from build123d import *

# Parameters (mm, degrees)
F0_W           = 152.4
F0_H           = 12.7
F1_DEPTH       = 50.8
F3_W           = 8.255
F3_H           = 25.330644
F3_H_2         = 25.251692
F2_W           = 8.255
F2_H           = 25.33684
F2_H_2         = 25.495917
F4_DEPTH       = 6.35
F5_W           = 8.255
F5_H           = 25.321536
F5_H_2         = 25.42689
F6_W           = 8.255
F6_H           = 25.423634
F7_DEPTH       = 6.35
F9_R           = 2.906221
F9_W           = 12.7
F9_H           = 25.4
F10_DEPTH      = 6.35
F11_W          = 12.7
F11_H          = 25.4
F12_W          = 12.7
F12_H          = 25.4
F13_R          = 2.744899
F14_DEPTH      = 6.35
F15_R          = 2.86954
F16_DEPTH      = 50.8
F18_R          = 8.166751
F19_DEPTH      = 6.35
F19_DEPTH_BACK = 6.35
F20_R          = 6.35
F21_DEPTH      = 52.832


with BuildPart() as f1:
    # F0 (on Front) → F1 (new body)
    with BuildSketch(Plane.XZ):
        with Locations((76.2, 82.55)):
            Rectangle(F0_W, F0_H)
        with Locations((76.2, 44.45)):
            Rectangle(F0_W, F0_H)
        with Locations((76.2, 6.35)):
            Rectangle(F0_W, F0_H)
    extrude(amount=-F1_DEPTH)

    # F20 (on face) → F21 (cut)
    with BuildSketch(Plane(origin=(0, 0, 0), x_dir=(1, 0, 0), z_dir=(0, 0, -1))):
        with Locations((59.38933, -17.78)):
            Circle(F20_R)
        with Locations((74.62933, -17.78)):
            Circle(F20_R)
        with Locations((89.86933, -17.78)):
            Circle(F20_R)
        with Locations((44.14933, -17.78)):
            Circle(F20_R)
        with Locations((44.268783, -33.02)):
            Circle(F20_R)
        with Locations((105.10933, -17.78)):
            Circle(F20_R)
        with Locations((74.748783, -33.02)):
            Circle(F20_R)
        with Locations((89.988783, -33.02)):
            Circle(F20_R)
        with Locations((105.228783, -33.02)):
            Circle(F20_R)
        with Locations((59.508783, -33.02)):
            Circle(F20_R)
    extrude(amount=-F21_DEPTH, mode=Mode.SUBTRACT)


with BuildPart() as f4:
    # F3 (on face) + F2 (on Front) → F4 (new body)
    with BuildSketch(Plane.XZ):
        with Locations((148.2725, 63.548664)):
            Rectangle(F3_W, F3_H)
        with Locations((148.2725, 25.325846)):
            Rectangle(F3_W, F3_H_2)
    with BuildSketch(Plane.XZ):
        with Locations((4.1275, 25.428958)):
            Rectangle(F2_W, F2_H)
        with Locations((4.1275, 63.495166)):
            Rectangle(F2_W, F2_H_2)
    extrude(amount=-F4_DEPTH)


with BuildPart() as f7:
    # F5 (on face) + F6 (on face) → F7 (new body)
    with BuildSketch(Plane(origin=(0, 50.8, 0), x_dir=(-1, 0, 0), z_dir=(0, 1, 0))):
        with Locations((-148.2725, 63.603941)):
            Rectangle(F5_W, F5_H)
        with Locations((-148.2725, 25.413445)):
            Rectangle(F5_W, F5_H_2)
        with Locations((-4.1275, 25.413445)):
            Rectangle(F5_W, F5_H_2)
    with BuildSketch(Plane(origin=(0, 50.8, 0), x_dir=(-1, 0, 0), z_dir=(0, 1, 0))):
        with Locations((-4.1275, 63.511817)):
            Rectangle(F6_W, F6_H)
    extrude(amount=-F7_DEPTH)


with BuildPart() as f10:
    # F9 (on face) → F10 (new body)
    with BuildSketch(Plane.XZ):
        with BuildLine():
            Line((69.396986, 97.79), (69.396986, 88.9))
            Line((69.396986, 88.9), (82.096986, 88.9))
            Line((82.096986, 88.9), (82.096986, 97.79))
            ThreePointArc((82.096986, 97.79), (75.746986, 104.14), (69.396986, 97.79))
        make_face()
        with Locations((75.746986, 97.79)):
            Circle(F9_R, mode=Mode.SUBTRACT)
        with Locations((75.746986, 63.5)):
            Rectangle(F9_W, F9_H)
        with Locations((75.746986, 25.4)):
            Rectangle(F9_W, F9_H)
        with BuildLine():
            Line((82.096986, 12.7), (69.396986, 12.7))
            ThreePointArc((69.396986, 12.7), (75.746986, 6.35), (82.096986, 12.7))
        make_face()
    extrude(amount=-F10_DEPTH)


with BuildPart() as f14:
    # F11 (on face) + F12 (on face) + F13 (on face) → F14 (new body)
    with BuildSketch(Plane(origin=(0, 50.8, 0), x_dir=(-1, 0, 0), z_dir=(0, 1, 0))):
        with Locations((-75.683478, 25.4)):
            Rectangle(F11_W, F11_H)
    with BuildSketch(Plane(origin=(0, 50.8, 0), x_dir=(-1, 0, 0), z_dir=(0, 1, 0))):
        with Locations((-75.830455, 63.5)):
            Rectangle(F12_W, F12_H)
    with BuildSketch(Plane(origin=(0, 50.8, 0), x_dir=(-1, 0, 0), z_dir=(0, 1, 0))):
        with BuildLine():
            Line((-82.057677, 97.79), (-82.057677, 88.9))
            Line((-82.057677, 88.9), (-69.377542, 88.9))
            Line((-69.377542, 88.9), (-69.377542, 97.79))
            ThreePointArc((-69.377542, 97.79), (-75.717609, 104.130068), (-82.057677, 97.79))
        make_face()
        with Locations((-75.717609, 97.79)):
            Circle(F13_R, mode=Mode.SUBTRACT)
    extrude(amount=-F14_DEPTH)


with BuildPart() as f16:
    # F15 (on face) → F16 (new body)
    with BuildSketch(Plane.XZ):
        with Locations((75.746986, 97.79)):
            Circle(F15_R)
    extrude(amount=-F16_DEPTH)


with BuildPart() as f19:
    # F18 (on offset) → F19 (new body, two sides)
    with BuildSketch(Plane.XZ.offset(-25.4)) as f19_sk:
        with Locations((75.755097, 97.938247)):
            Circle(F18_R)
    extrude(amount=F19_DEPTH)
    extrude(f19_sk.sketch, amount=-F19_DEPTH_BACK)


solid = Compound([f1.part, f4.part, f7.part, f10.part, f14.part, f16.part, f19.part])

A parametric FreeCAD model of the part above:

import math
import FreeCAD as App
import Part
import Sketcher

V = App.Vector
Q = App.Units.Quantity

doc = App.newDocument("Part")
body = doc.addObject("PartDesign::Body", "Body")
body.AllowCompound = True

# Sketch on XZ plane
sketch1 = body.newObject("Sketcher::SketchObject", "Sketch")
sketch1.AttachmentSupport = (doc.getObject("XZ_Plane"), [""])
sketch1.MapMode = "FlatFace"
sketch1.addGeometry(Part.LineSegment(V(0, 89, 0), V(0, 76, 0)), False)
sketch1.addGeometry(Part.LineSegment(V(0, 76, 0), V(152, 76, 0)), False)
sketch1.addGeometry(Part.LineSegment(V(152, 76, 0), V(152, 89, 0)), False)
sketch1.addGeometry(Part.LineSegment(V(152, 89, 0), V(0, 89, 0)), False)
sketch1.addGeometry(Part.LineSegment(V(0, 51, 0), V(0, 38, 0)), False)
sketch1.addGeometry(Part.LineSegment(V(0, 38, 0), V(152, 38, 0)), False)
sketch1.addGeometry(Part.LineSegment(V(152, 38, 0), V(152, 51, 0)), False)
sketch1.addGeometry(Part.LineSegment(V(152, 51, 0), V(0, 51, 0)), False)
sketch1.addGeometry(Part.LineSegment(V(0, 13, 0), V(0, 0, 0)), False)
sketch1.addGeometry(Part.LineSegment(V(0, 0, 0), V(152, 0, 0)), False)
sketch1.addGeometry(Part.LineSegment(V(152, 0, 0), V(152, 13, 0)), False)
sketch1.addGeometry(Part.LineSegment(V(152, 13, 0), V(0, 13, 0)), False)
sketch1.addConstraint(Sketcher.Constraint("Coincident", 0, 2, 1, 1))
sketch1.addConstraint(Sketcher.Constraint("Coincident", 1, 2, 2, 1))
sketch1.addConstraint(Sketcher.Constraint("Coincident", 2, 2, 3, 1))
sketch1.addConstraint(Sketcher.Constraint("Coincident", 3, 2, 0, 1))
sketch1.addConstraint(Sketcher.Constraint("Coincident", 4, 2, 5, 1))
sketch1.addConstraint(Sketcher.Constraint("Coincident", 5, 2, 6, 1))
sketch1.addConstraint(Sketcher.Constraint("Coincident", 6, 2, 7, 1))
sketch1.addConstraint(Sketcher.Constraint("Coincident", 7, 2, 4, 1))
sketch1.addConstraint(Sketcher.Constraint("Coincident", 8, 2, 9, 1))
sketch1.addConstraint(Sketcher.Constraint("Coincident", 9, 2, 10, 1))
sketch1.addConstraint(Sketcher.Constraint("Coincident", 10, 2, 11, 1))
sketch1.addConstraint(Sketcher.Constraint("Coincident", 11, 2, 8, 1))
sketch1.addConstraint(Sketcher.Constraint("Vertical", 0))
sketch1.addConstraint(Sketcher.Constraint("Horizontal", 1))
sketch1.addConstraint(Sketcher.Constraint("Vertical", 2))
sketch1.addConstraint(Sketcher.Constraint("Horizontal", 3))
sketch1.addConstraint(Sketcher.Constraint("Vertical", 4))
sketch1.addConstraint(Sketcher.Constraint("Horizontal", 5))
sketch1.addConstraint(Sketcher.Constraint("Vertical", 6))
sketch1.addConstraint(Sketcher.Constraint("Horizontal", 7))
sketch1.addConstraint(Sketcher.Constraint("Vertical", 8))
sketch1.addConstraint(Sketcher.Constraint("Horizontal", 9))
sketch1.addConstraint(Sketcher.Constraint("Vertical", 10))
sketch1.addConstraint(Sketcher.Constraint("Horizontal", 11))
sketch1.addConstraint(Sketcher.Constraint("Coincident", 8, 2, -1, 1))
sketch1.addConstraint(Sketcher.Constraint("PointOnObject", 0, 2, -2))
sketch1.addConstraint(Sketcher.Constraint("PointOnObject", 4, 2, -2))
sketch1.addConstraint(Sketcher.Constraint("Vertical", 2, 2, 5, 2))
sketch1.addConstraint(Sketcher.Constraint("Vertical", 6, 2, 9, 2))
sketch1.addConstraint(Sketcher.Constraint("Equal", 2, 4))
sketch1.addConstraint(Sketcher.Constraint("Equal", 6, 8))
sketch1.addConstraint(Sketcher.Constraint("DistanceX", 1, 1, 1, 2, Q("6 in")))
sketch1.addConstraint(Sketcher.Constraint("DistanceY", 0, 2, 0, 1, Q("0.5 in")))
sketch1.addConstraint(Sketcher.Constraint("DistanceY", -1, 1, 0, 2, Q("3 in")))
sketch1.addConstraint(Sketcher.Constraint("DistanceY", -1, 1, 6, 2, Q("2 in")))
pad1 = body.newObject("PartDesign::Pad", "Pad")
pad1.Profile = sketch1
pad1.Length = Q("2 in")
pad1.Reversed = True

# Sketch on XY plane
sketch2 = body.newObject("Sketcher::SketchObject", "Sketch001")
sketch2.AttachmentSupport = (doc.getObject("XY_Plane"), [""])
sketch2.MapMode = "FlatFace"
sketch2.addGeometry(Part.Circle(V(59, 18, 0), V(0, 0, 1), 6), False)
sketch2.addGeometry(Part.Circle(V(75, 18, 0), V(0, 0, 1), 6), False)
sketch2.addGeometry(Part.Circle(V(90, 18, 0), V(0, 0, 1), 6), False)
sketch2.addGeometry(Part.Circle(V(44, 18, 0), V(0, 0, 1), 6), False)
sketch2.addGeometry(Part.Circle(V(44, 33, 0), V(0, 0, 1), 6), False)
sketch2.addGeometry(Part.Circle(V(105, 18, 0), V(0, 0, 1), 6), False)
sketch2.addGeometry(Part.Circle(V(75, 33, 0), V(0, 0, 1), 6), False)
sketch2.addGeometry(Part.Circle(V(90, 33, 0), V(0, 0, 1), 6), False)
sketch2.addGeometry(Part.Circle(V(105, 33, 0), V(0, 0, 1), 6), False)
sketch2.addGeometry(Part.Circle(V(60, 33, 0), V(0, 0, 1), 6), False)
sketch2.addConstraint(Sketcher.Constraint("Equal", 0, 1))
sketch2.addConstraint(Sketcher.Constraint("Equal", 1, 2))
sketch2.addConstraint(Sketcher.Constraint("Equal", 2, 3))
sketch2.addConstraint(Sketcher.Constraint("Equal", 3, 4))
sketch2.addConstraint(Sketcher.Constraint("Equal", 4, 5))
sketch2.addConstraint(Sketcher.Constraint("Equal", 5, 6))
sketch2.addConstraint(Sketcher.Constraint("Equal", 6, 7))
sketch2.addConstraint(Sketcher.Constraint("Equal", 7, 8))
sketch2.addConstraint(Sketcher.Constraint("Equal", 8, 9))
sketch2.addConstraint(Sketcher.Constraint("Horizontal", 0, 3, 1, 3))
sketch2.addConstraint(Sketcher.Constraint("Horizontal", 1, 3, 2, 3))
sketch2.addConstraint(Sketcher.Constraint("Horizontal", 2, 3, 3, 3))
sketch2.addConstraint(Sketcher.Constraint("Horizontal", 3, 3, 5, 3))
sketch2.addConstraint(Sketcher.Constraint("Horizontal", 4, 3, 6, 3))
sketch2.addConstraint(Sketcher.Constraint("Horizontal", 6, 3, 7, 3))
sketch2.addConstraint(Sketcher.Constraint("Horizontal", 7, 3, 8, 3))
sketch2.addConstraint(Sketcher.Constraint("Horizontal", 8, 3, 9, 3))
sketch2.addConstraint(Sketcher.Constraint("Diameter", 0, Q("0.5 in")))
sketch2.addConstraint(Sketcher.Constraint("DistanceY", -1, 1, 0, 3, Q("0.7 in")))
sketch2.addConstraint(Sketcher.Constraint("DistanceY", -1, 1, 4, 3, Q("1.3 in")))
sketch2.addConstraint(Sketcher.Constraint("DistanceX", 0, 3, 1, 3, Q("0.6 in")))
sketch2.addConstraint(Sketcher.Constraint("DistanceX", 1, 3, 2, 3, Q("0.6 in")))
sketch2.addConstraint(Sketcher.Constraint("DistanceX", 3, 3, 0, 3, Q("0.6 in")))
sketch2.addConstraint(Sketcher.Constraint("DistanceX", 2, 3, 5, 3, Q("0.6 in")))
sketch2.addConstraint(Sketcher.Constraint("DistanceX", 4, 3, 6, 3, Q("1.2 in")))
sketch2.addConstraint(Sketcher.Constraint("DistanceX", 6, 3, 7, 3, Q("0.6 in")))
sketch2.addConstraint(Sketcher.Constraint("DistanceX", 7, 3, 8, 3, Q("0.6 in")))
sketch2.addConstraint(Sketcher.Constraint("DistanceX", 4, 3, 9, 3, Q("0.6 in")))
sketch2.addConstraint(Sketcher.Constraint("DistanceX", -1, 1, 0, 3, Q("59.38933 mm")))
sketch2.addConstraint(Sketcher.Constraint("DistanceX", -1, 1, 4, 3, Q("44.268783 mm")))
pocket1 = body.newObject("PartDesign::Pocket", "Pocket")
pocket1.Profile = sketch2
pocket1.Length = Q("2.08 in")
pocket1.Reversed = True
body2 = doc.addObject("PartDesign::Body", "Body001")
body2.AllowCompound = True

# Sketch on XZ plane
sketch3 = body2.newObject("Sketcher::SketchObject", "Sketch002")
sketch3.AttachmentSupport = (doc.getObject("XZ_Plane001"), [""])
sketch3.MapMode = "FlatFace"
sketch3.addGeometry(Part.LineSegment(V(144, 76, 0), V(144, 51, 0)), False)
sketch3.addGeometry(Part.LineSegment(V(144, 51, 0), V(152, 51, 0)), False)
sketch3.addGeometry(Part.LineSegment(V(152, 51, 0), V(152, 76, 0)), False)
sketch3.addGeometry(Part.LineSegment(V(152, 76, 0), V(144, 76, 0)), False)
sketch3.addGeometry(Part.LineSegment(V(144, 38, 0), V(144, 13, 0)), False)
sketch3.addGeometry(Part.LineSegment(V(144, 13, 0), V(152, 13, 0)), False)
sketch3.addGeometry(Part.LineSegment(V(152, 13, 0), V(152, 38, 0)), False)
sketch3.addGeometry(Part.LineSegment(V(152, 38, 0), V(144, 38, 0)), False)
sketch3.addGeometry(Part.LineSegment(V(0, 38, 0), V(0, 13, 0)), False)
sketch3.addGeometry(Part.LineSegment(V(0, 13, 0), V(8, 13, 0)), False)
sketch3.addGeometry(Part.LineSegment(V(8, 13, 0), V(8, 38, 0)), False)
sketch3.addGeometry(Part.LineSegment(V(8, 38, 0), V(0, 38, 0)), False)
sketch3.addGeometry(Part.LineSegment(V(0, 76, 0), V(0, 51, 0)), False)
sketch3.addGeometry(Part.LineSegment(V(0, 51, 0), V(8, 51, 0)), False)
sketch3.addGeometry(Part.LineSegment(V(8, 51, 0), V(8, 76, 0)), False)
sketch3.addGeometry(Part.LineSegment(V(8, 76, 0), V(0, 76, 0)), False)
sketch3.addConstraint(Sketcher.Constraint("Coincident", 0, 2, 1, 1))
sketch3.addConstraint(Sketcher.Constraint("Coincident", 1, 2, 2, 1))
sketch3.addConstraint(Sketcher.Constraint("Coincident", 2, 2, 3, 1))
sketch3.addConstraint(Sketcher.Constraint("Coincident", 3, 2, 0, 1))
sketch3.addConstraint(Sketcher.Constraint("Coincident", 4, 2, 5, 1))
sketch3.addConstraint(Sketcher.Constraint("Coincident", 5, 2, 6, 1))
sketch3.addConstraint(Sketcher.Constraint("Coincident", 6, 2, 7, 1))
sketch3.addConstraint(Sketcher.Constraint("Coincident", 7, 2, 4, 1))
sketch3.addConstraint(Sketcher.Constraint("Coincident", 8, 2, 9, 1))
sketch3.addConstraint(Sketcher.Constraint("Coincident", 9, 2, 10, 1))
sketch3.addConstraint(Sketcher.Constraint("Coincident", 10, 2, 11, 1))
sketch3.addConstraint(Sketcher.Constraint("Coincident", 11, 2, 8, 1))
sketch3.addConstraint(Sketcher.Constraint("Coincident", 12, 2, 13, 1))
sketch3.addConstraint(Sketcher.Constraint("Coincident", 13, 2, 14, 1))
sketch3.addConstraint(Sketcher.Constraint("Coincident", 14, 2, 15, 1))
sketch3.addConstraint(Sketcher.Constraint("Coincident", 15, 2, 12, 1))
sketch3.addConstraint(Sketcher.Constraint("Vertical", 0))
sketch3.addConstraint(Sketcher.Constraint("Horizontal", 1))
sketch3.addConstraint(Sketcher.Constraint("Vertical", 2))
sketch3.addConstraint(Sketcher.Constraint("Horizontal", 3))
sketch3.addConstraint(Sketcher.Constraint("Vertical", 4))
sketch3.addConstraint(Sketcher.Constraint("Horizontal", 5))
sketch3.addConstraint(Sketcher.Constraint("Vertical", 6))
sketch3.addConstraint(Sketcher.Constraint("Horizontal", 7))
sketch3.addConstraint(Sketcher.Constraint("Vertical", 8))
sketch3.addConstraint(Sketcher.Constraint("Horizontal", 9))
sketch3.addConstraint(Sketcher.Constraint("Vertical", 10))
sketch3.addConstraint(Sketcher.Constraint("Horizontal", 11))
sketch3.addConstraint(Sketcher.Constraint("Vertical", 12))
sketch3.addConstraint(Sketcher.Constraint("Horizontal", 13))
sketch3.addConstraint(Sketcher.Constraint("Vertical", 14))
sketch3.addConstraint(Sketcher.Constraint("Horizontal", 15))
sketch3.addConstraint(Sketcher.Constraint("PointOnObject", 8, 2, -2))
sketch3.addConstraint(Sketcher.Constraint("PointOnObject", 12, 2, -2))
sketch3.addConstraint(Sketcher.Constraint("Vertical", 3, 2, 4, 2))
sketch3.addConstraint(Sketcher.Constraint("Vertical", 2, 2, 5, 2))
sketch3.addConstraint(Sketcher.Constraint("Vertical", 10, 2, 13, 2))
sketch3.addConstraint(Sketcher.Constraint("Equal", 7, 9))
sketch3.addConstraint(Sketcher.Constraint("DistanceX", -1, 1, 1, 2, Q("6 in")))
sketch3.addConstraint(Sketcher.Constraint("DistanceY", -1, 1, 4, 2, Q("0.5 in")))
sketch3.addConstraint(Sketcher.Constraint("DistanceX", 1, 1, 1, 2, Q("0.325 in")))
sketch3.addConstraint(Sketcher.Constraint("DistanceY", 8, 2, 8, 1, Q("25.33684 mm")))
sketch3.addConstraint(Sketcher.Constraint("DistanceY", 0, 2, 0, 1, Q("25.330644 mm")))
sketch3.addConstraint(Sketcher.Constraint("DistanceY", 4, 2, 4, 1, Q("25.251692 mm")))
sketch3.addConstraint(Sketcher.Constraint("DistanceY", 12, 2, 12, 1, Q("25.495917 mm")))
sketch3.addConstraint(Sketcher.Constraint("DistanceY", 4, 2, 0, 2, Q("38.183342 mm")))
sketch3.addConstraint(Sketcher.Constraint("DistanceY", 4, 2, 8, 2, Q("0.060538 mm")))
sketch3.addConstraint(Sketcher.Constraint("DistanceY", 11, 2, 12, 2, Q("12.64983 mm")))
pad2 = body2.newObject("PartDesign::Pad", "Pad001")
pad2.Profile = sketch3
pad2.Length = Q("0.25 in")
pad2.Reversed = True
body3 = doc.addObject("PartDesign::Body", "Body002")
body3.AllowCompound = True

# Sketch on XZ plane
sketch4 = body3.newObject("Sketcher::SketchObject", "Sketch003")
sketch4.AttachmentSupport = (doc.getObject("XZ_Plane002"), [""])
sketch4.MapMode = "FlatFace"
sketch4.AttachmentOffset = App.Placement(V(0, 0, -2 * 25.4), App.Rotation())
sketch4.addGeometry(Part.LineSegment(V(152, 76, 0), V(152, 51, 0)), False)
sketch4.addGeometry(Part.LineSegment(V(152, 51, 0), V(144, 51, 0)), False)
sketch4.addGeometry(Part.LineSegment(V(144, 51, 0), V(144, 76, 0)), False)
sketch4.addGeometry(Part.LineSegment(V(144, 76, 0), V(152, 76, 0)), False)
sketch4.addGeometry(Part.LineSegment(V(152, 38, 0), V(152, 13, 0)), False)
sketch4.addGeometry(Part.LineSegment(V(152, 13, 0), V(144, 13, 0)), False)
sketch4.addGeometry(Part.LineSegment(V(144, 13, 0), V(144, 38, 0)), False)
sketch4.addGeometry(Part.LineSegment(V(144, 38, 0), V(152, 38, 0)), False)
sketch4.addGeometry(Part.LineSegment(V(8, 38, 0), V(8, 13, 0)), False)
sketch4.addGeometry(Part.LineSegment(V(8, 13, 0), V(0, 13, 0)), False)
sketch4.addGeometry(Part.LineSegment(V(0, 13, 0), V(0, 38, 0)), False)
sketch4.addGeometry(Part.LineSegment(V(0, 38, 0), V(8, 38, 0)), False)
sketch4.addGeometry(Part.LineSegment(V(8, 76, 0), V(8, 51, 0)), False)
sketch4.addGeometry(Part.LineSegment(V(8, 51, 0), V(0, 51, 0)), False)
sketch4.addGeometry(Part.LineSegment(V(0, 51, 0), V(0, 76, 0)), False)
sketch4.addGeometry(Part.LineSegment(V(0, 76, 0), V(8, 76, 0)), False)
sketch4.addConstraint(Sketcher.Constraint("Coincident", 0, 2, 1, 1))
sketch4.addConstraint(Sketcher.Constraint("Coincident", 1, 2, 2, 1))
sketch4.addConstraint(Sketcher.Constraint("Coincident", 2, 2, 3, 1))
sketch4.addConstraint(Sketcher.Constraint("Coincident", 3, 2, 0, 1))
sketch4.addConstraint(Sketcher.Constraint("Coincident", 4, 2, 5, 1))
sketch4.addConstraint(Sketcher.Constraint("Coincident", 5, 2, 6, 1))
sketch4.addConstraint(Sketcher.Constraint("Coincident", 6, 2, 7, 1))
sketch4.addConstraint(Sketcher.Constraint("Coincident", 7, 2, 4, 1))
sketch4.addConstraint(Sketcher.Constraint("Coincident", 8, 2, 9, 1))
sketch4.addConstraint(Sketcher.Constraint("Coincident", 9, 2, 10, 1))
sketch4.addConstraint(Sketcher.Constraint("Coincident", 10, 2, 11, 1))
sketch4.addConstraint(Sketcher.Constraint("Coincident", 11, 2, 8, 1))
sketch4.addConstraint(Sketcher.Constraint("Coincident", 12, 2, 13, 1))
sketch4.addConstraint(Sketcher.Constraint("Coincident", 13, 2, 14, 1))
sketch4.addConstraint(Sketcher.Constraint("Coincident", 14, 2, 15, 1))
sketch4.addConstraint(Sketcher.Constraint("Coincident", 15, 2, 12, 1))
sketch4.addConstraint(Sketcher.Constraint("Vertical", 0))
sketch4.addConstraint(Sketcher.Constraint("Horizontal", 1))
sketch4.addConstraint(Sketcher.Constraint("Vertical", 2))
sketch4.addConstraint(Sketcher.Constraint("Horizontal", 3))
sketch4.addConstraint(Sketcher.Constraint("Vertical", 4))
sketch4.addConstraint(Sketcher.Constraint("Horizontal", 5))
sketch4.addConstraint(Sketcher.Constraint("Vertical", 6))
sketch4.addConstraint(Sketcher.Constraint("Horizontal", 7))
sketch4.addConstraint(Sketcher.Constraint("Vertical", 8))
sketch4.addConstraint(Sketcher.Constraint("Horizontal", 9))
sketch4.addConstraint(Sketcher.Constraint("Vertical", 10))
sketch4.addConstraint(Sketcher.Constraint("Horizontal", 11))
sketch4.addConstraint(Sketcher.Constraint("Vertical", 12))
sketch4.addConstraint(Sketcher.Constraint("Horizontal", 13))
sketch4.addConstraint(Sketcher.Constraint("Vertical", 14))
sketch4.addConstraint(Sketcher.Constraint("Horizontal", 15))
sketch4.addConstraint(Sketcher.Constraint("PointOnObject", 9, 2, -2))
sketch4.addConstraint(Sketcher.Constraint("PointOnObject", 13, 2, -2))
sketch4.addConstraint(Sketcher.Constraint("Horizontal", 5, 2, 8, 2))
sketch4.addConstraint(Sketcher.Constraint("Horizontal", 7, 2, 10, 2))
sketch4.addConstraint(Sketcher.Constraint("Vertical", 3, 2, 4, 2))
sketch4.addConstraint(Sketcher.Constraint("Vertical", 2, 2, 5, 2))
sketch4.addConstraint(Sketcher.Constraint("Vertical", 11, 2, 12, 2))
sketch4.addConstraint(Sketcher.Constraint("Equal", 7, 9))
sketch4.addConstraint(Sketcher.Constraint("DistanceX", -1, 1, 0, 2, Q("6 in")))
sketch4.addConstraint(Sketcher.Constraint("DistanceY", -1, 1, 12, 2, Q("2 in")))
sketch4.addConstraint(Sketcher.Constraint("DistanceY", -1, 1, 4, 2, Q("0.5 in")))
sketch4.addConstraint(Sketcher.Constraint("DistanceX", 1, 2, 1, 1, Q("0.325 in")))
sketch4.addConstraint(Sketcher.Constraint("DistanceY", 4, 2, 4, 1, Q("25.42689 mm")))
sketch4.addConstraint(Sketcher.Constraint("DistanceY", 0, 2, 0, 1, Q("25.321536 mm")))
sketch4.addConstraint(Sketcher.Constraint("DistanceY", 12, 2, 12, 1, Q("25.423634 mm")))
sketch4.addConstraint(Sketcher.Constraint("DistanceY", -1, 1, 2, 2, Q("76.264709 mm")))
pad3 = body3.newObject("PartDesign::Pad", "Pad002")
pad3.Profile = sketch4
pad3.Length = Q("0.25 in")
body4 = doc.addObject("PartDesign::Body", "Body003")
body4.AllowCompound = True

# Sketch on XZ plane
sketch5 = body4.newObject("Sketcher::SketchObject", "Sketch004")
sketch5.AttachmentSupport = (doc.getObject("XZ_Plane003"), [""])
sketch5.MapMode = "FlatFace"
sketch5.addGeometry(Part.LineSegment(V(69.4, 97.8, 0), V(69.4, 88.9, 0)), False)
sketch5.addGeometry(Part.LineSegment(V(69.4, 88.9, 0), V(82.1, 88.9, 0)), False)
sketch5.addGeometry(Part.LineSegment(V(82.1, 88.9, 0), V(82.1, 97.8, 0)), False)
sketch5.addGeometry(Part.ArcOfCircle(Part.Circle(V(75.7, 97.8, 0), V(0, 0, 1), 6.3), math.radians(0), math.radians(180)), False)
sketch5.addGeometry(Part.Circle(V(75.7, 97.8, 0), V(0, 0, 1), 2.9), False)
sketch5.addGeometry(Part.LineSegment(V(69.4, 76.2, 0), V(69.4, 50.8, 0)), False)
sketch5.addGeometry(Part.LineSegment(V(69.4, 50.8, 0), V(82.1, 50.8, 0)), False)
sketch5.addGeometry(Part.LineSegment(V(82.1, 50.8, 0), V(82.1, 76.2, 0)), False)
sketch5.addGeometry(Part.LineSegment(V(82.1, 76.2, 0), V(69.4, 76.2, 0)), False)
sketch5.addGeometry(Part.LineSegment(V(69.4, 38.1, 0), V(69.4, 12.7, 0)), False)
sketch5.addGeometry(Part.ArcOfCircle(Part.Circle(V(75.7, 12.7, 0), V(0, 0, 1), 6.3), math.radians(180), math.radians(360)), False)
sketch5.addGeometry(Part.LineSegment(V(82.1, 12.7, 0), V(82.1, 38.1, 0)), False)
sketch5.addGeometry(Part.LineSegment(V(82.1, 38.1, 0), V(69.4, 38.1, 0)), False)
sketch5.addConstraint(Sketcher.Constraint("Coincident", 0, 2, 1, 1))
sketch5.addConstraint(Sketcher.Constraint("Coincident", 1, 2, 2, 1))
sketch5.addConstraint(Sketcher.Constraint("Tangent", 2, 2, 3, 1))
sketch5.addConstraint(Sketcher.Constraint("Tangent", 3, 2, 0, 1))
sketch5.addConstraint(Sketcher.Constraint("Coincident", 5, 2, 6, 1))
sketch5.addConstraint(Sketcher.Constraint("Coincident", 6, 2, 7, 1))
sketch5.addConstraint(Sketcher.Constraint("Coincident", 7, 2, 8, 1))
sketch5.addConstraint(Sketcher.Constraint("Coincident", 8, 2, 5, 1))
sketch5.addConstraint(Sketcher.Constraint("Tangent", 9, 2, 10, 1))
sketch5.addConstraint(Sketcher.Constraint("Tangent", 10, 2, 11, 1))
sketch5.addConstraint(Sketcher.Constraint("Coincident", 11, 2, 12, 1))
sketch5.addConstraint(Sketcher.Constraint("Coincident", 12, 2, 9, 1))
sketch5.addConstraint(Sketcher.Constraint("Vertical", 0))
sketch5.addConstraint(Sketcher.Constraint("Horizontal", 1))
sketch5.addConstraint(Sketcher.Constraint("Vertical", 2))
sketch5.addConstraint(Sketcher.Constraint("Vertical", 5))
sketch5.addConstraint(Sketcher.Constraint("Horizontal", 6))
sketch5.addConstraint(Sketcher.Constraint("Vertical", 7))
sketch5.addConstraint(Sketcher.Constraint("Horizontal", 8))
sketch5.addConstraint(Sketcher.Constraint("Vertical", 9))
sketch5.addConstraint(Sketcher.Constraint("Vertical", 11))
sketch5.addConstraint(Sketcher.Constraint("Horizontal", 12))
sketch5.addConstraint(Sketcher.Constraint("Coincident", 4, 3, 3, 3))
sketch5.addConstraint(Sketcher.Constraint("Equal", 3, 10))
sketch5.addConstraint(Sketcher.Constraint("Vertical", 4, 3, 10, 3))
sketch5.addConstraint(Sketcher.Constraint("Vertical", 3, 2, 5, 2))
sketch5.addConstraint(Sketcher.Constraint("Vertical", 2, 2, 6, 2))
sketch5.addConstraint(Sketcher.Constraint("Equal", 7, 9))
sketch5.addConstraint(Sketcher.Constraint("DistanceY", 5, 2, 5, 1, Q("1 in")))
sketch5.addConstraint(Sketcher.Constraint("Radius", 3, Q("0.25 in")))
sketch5.addConstraint(Sketcher.Constraint("DistanceY", -1, 1, 5, 2, Q("2 in")))
sketch5.addConstraint(Sketcher.Constraint("DistanceY", 10, 3, 0, 2, Q("3 in")))
sketch5.addConstraint(Sketcher.Constraint("DistanceY", 0, 2, 0, 1, Q("0.35 in")))
sketch5.addConstraint(Sketcher.Constraint("DistanceY", -1, 1, 10, 3, Q("0.5 in")))
sketch5.addConstraint(Sketcher.Constraint("Diameter", 4, Q("5.812442 mm")))
sketch5.addConstraint(Sketcher.Constraint("DistanceX", -1, 1, 3, 3, Q("75.746986 mm")))
pad4 = body4.newObject("PartDesign::Pad", "Pad003")
pad4.Profile = sketch5
pad4.Length = Q("0.25 in")
pad4.Reversed = True
body5 = doc.addObject("PartDesign::Body", "Body004")
body5.AllowCompound = True

# Sketch on XZ plane
sketch6 = body5.newObject("Sketcher::SketchObject", "Sketch005")
sketch6.AttachmentSupport = (doc.getObject("XZ_Plane004"), [""])
sketch6.MapMode = "FlatFace"
sketch6.AttachmentOffset = App.Placement(V(0, 0, -2 * 25.4), App.Rotation())
sketch6.addGeometry(Part.LineSegment(V(82, 38.1, 0), V(82, 12.7, 0)), False)
sketch6.addGeometry(Part.LineSegment(V(82, 12.7, 0), V(69.3, 12.7, 0)), False)
sketch6.addGeometry(Part.LineSegment(V(69.3, 12.7, 0), V(69.3, 38.1, 0)), False)
sketch6.addGeometry(Part.LineSegment(V(69.3, 38.1, 0), V(82, 38.1, 0)), False)
sketch6.addGeometry(Part.LineSegment(V(82.2, 76.2, 0), V(82.2, 50.8, 0)), False)
sketch6.addGeometry(Part.LineSegment(V(82.2, 50.8, 0), V(69.5, 50.8, 0)), False)
sketch6.addGeometry(Part.LineSegment(V(69.5, 50.8, 0), V(69.5, 76.2, 0)), False)
sketch6.addGeometry(Part.LineSegment(V(69.5, 76.2, 0), V(82.2, 76.2, 0)), False)
sketch6.addGeometry(Part.LineSegment(V(82.1, 97.8, 0), V(82.1, 88.9, 0)), False)
sketch6.addGeometry(Part.LineSegment(V(82.1, 88.9, 0), V(69.4, 88.9, 0)), False)
sketch6.addGeometry(Part.LineSegment(V(69.4, 88.9, 0), V(69.4, 97.8, 0)), False)
sketch6.addGeometry(Part.ArcOfCircle(Part.Circle(V(75.7, 97.8, 0), V(0, 0, 1), 6.3), math.radians(0), math.radians(180)), False)
sketch6.addGeometry(Part.Circle(V(75.7, 97.8, 0), V(0, 0, 1), 2.7), False)
sketch6.addConstraint(Sketcher.Constraint("Coincident", 0, 2, 1, 1))
sketch6.addConstraint(Sketcher.Constraint("Coincident", 1, 2, 2, 1))
sketch6.addConstraint(Sketcher.Constraint("Coincident", 2, 2, 3, 1))
sketch6.addConstraint(Sketcher.Constraint("Coincident", 3, 2, 0, 1))
sketch6.addConstraint(Sketcher.Constraint("Coincident", 4, 2, 5, 1))
sketch6.addConstraint(Sketcher.Constraint("Coincident", 5, 2, 6, 1))
sketch6.addConstraint(Sketcher.Constraint("Coincident", 6, 2, 7, 1))
sketch6.addConstraint(Sketcher.Constraint("Coincident", 7, 2, 4, 1))
sketch6.addConstraint(Sketcher.Constraint("Coincident", 8, 2, 9, 1))
sketch6.addConstraint(Sketcher.Constraint("Coincident", 9, 2, 10, 1))
sketch6.addConstraint(Sketcher.Constraint("Tangent", 10, 2, 11, 2))
sketch6.addConstraint(Sketcher.Constraint("Tangent", 11, 1, 8, 1))
sketch6.addConstraint(Sketcher.Constraint("Vertical", 0))
sketch6.addConstraint(Sketcher.Constraint("Horizontal", 1))
sketch6.addConstraint(Sketcher.Constraint("Vertical", 2))
sketch6.addConstraint(Sketcher.Constraint("Horizontal", 3))
sketch6.addConstraint(Sketcher.Constraint("Vertical", 4))
sketch6.addConstraint(Sketcher.Constraint("Horizontal", 5))
sketch6.addConstraint(Sketcher.Constraint("Vertical", 6))
sketch6.addConstraint(Sketcher.Constraint("Horizontal", 7))
sketch6.addConstraint(Sketcher.Constraint("Vertical", 8))
sketch6.addConstraint(Sketcher.Constraint("Horizontal", 9))
sketch6.addConstraint(Sketcher.Constraint("Vertical", 10))
sketch6.addConstraint(Sketcher.Constraint("Coincident", 12, 3, 11, 3))
sketch6.addConstraint(Sketcher.Constraint("Equal", 3, 5))
sketch6.addConstraint(Sketcher.Constraint("Equal", 2, 4))
sketch6.addConstraint(Sketcher.Constraint("DistanceY", 0, 2, 0, 1, Q("1 in")))
sketch6.addConstraint(Sketcher.Constraint("DistanceX", 1, 2, 1, 1, Q("0.5 in")))
sketch6.addConstraint(Sketcher.Constraint("DistanceY", -1, 1, 4, 2, Q("2 in")))
sketch6.addConstraint(Sketcher.Constraint("DistanceY", 8, 2, 8, 1, Q("0.35 in")))
sketch6.addConstraint(Sketcher.Constraint("DistanceY", -1, 1, 0, 2, Q("0.5 in")))
sketch6.addConstraint(Sketcher.Constraint("DistanceY", -1, 1, 8, 2, Q("3.5 in")))
sketch6.addConstraint(Sketcher.Constraint("Diameter", 12, Q("5.489798 mm")))
sketch6.addConstraint(Sketcher.Constraint("Radius", 11, Q("6.340067 mm")))
sketch6.addConstraint(Sketcher.Constraint("DistanceX", -1, 1, 11, 3, Q("75.717609 mm")))
sketch6.addConstraint(Sketcher.Constraint("DistanceX", -1, 1, 0, 2, Q("82.033478 mm")))
sketch6.addConstraint(Sketcher.Constraint("DistanceX", 6, 2, 8, 2, Q("12.577222 mm")))
pad5 = body5.newObject("PartDesign::Pad", "Pad004")
pad5.Profile = sketch6
pad5.Length = Q("0.25 in")
body6 = doc.addObject("PartDesign::Body", "Body005")

# Sketch on XZ plane
sketch7 = body6.newObject("Sketcher::SketchObject", "Sketch006")
sketch7.AttachmentSupport = (doc.getObject("XZ_Plane005"), [""])
sketch7.MapMode = "FlatFace"
sketch7.addGeometry(Part.Circle(V(75.7, 97.8, 0), V(0, 0, 1), 2.9), False)
sketch7.addConstraint(Sketcher.Constraint("DistanceY", -1, 1, 0, 3, Q("3.85 in")))
sketch7.addConstraint(Sketcher.Constraint("Diameter", 0, Q("5.73908 mm")))
sketch7.addConstraint(Sketcher.Constraint("DistanceX", -1, 1, 0, 3, Q("75.746986 mm")))
pad6 = body6.newObject("PartDesign::Pad", "Pad005")
pad6.Profile = sketch7
pad6.Length = Q("2 in")
pad6.Reversed = True
body7 = doc.addObject("PartDesign::Body", "Body006")

# Sketch on XZ plane
sketch8 = body7.newObject("Sketcher::SketchObject", "Sketch007")
sketch8.AttachmentSupport = (doc.getObject("XZ_Plane006"), [""])
sketch8.MapMode = "FlatFace"
sketch8.AttachmentOffset = App.Placement(V(0, 0, -1 * 25.4), App.Rotation())
sketch8.addGeometry(Part.Circle(V(76, 98, 0), V(0, 0, 1), 8), False)
sketch8.addConstraint(Sketcher.Constraint("Diameter", 0, Q("16.333502 mm")))
sketch8.addConstraint(Sketcher.Constraint("DistanceX", -1, 1, 0, 3, Q("75.755097 mm")))
sketch8.addConstraint(Sketcher.Constraint("DistanceY", -1, 1, 0, 3, Q("97.938247 mm")))
pad7 = body7.newObject("PartDesign::Pad", "Pad006")
pad7.Profile = sketch8
pad7.Type = "TwoLengths"
pad7.Length = Q("0.25 in")
pad7.Length2 = Q("0.25 in")

doc.recompute()
